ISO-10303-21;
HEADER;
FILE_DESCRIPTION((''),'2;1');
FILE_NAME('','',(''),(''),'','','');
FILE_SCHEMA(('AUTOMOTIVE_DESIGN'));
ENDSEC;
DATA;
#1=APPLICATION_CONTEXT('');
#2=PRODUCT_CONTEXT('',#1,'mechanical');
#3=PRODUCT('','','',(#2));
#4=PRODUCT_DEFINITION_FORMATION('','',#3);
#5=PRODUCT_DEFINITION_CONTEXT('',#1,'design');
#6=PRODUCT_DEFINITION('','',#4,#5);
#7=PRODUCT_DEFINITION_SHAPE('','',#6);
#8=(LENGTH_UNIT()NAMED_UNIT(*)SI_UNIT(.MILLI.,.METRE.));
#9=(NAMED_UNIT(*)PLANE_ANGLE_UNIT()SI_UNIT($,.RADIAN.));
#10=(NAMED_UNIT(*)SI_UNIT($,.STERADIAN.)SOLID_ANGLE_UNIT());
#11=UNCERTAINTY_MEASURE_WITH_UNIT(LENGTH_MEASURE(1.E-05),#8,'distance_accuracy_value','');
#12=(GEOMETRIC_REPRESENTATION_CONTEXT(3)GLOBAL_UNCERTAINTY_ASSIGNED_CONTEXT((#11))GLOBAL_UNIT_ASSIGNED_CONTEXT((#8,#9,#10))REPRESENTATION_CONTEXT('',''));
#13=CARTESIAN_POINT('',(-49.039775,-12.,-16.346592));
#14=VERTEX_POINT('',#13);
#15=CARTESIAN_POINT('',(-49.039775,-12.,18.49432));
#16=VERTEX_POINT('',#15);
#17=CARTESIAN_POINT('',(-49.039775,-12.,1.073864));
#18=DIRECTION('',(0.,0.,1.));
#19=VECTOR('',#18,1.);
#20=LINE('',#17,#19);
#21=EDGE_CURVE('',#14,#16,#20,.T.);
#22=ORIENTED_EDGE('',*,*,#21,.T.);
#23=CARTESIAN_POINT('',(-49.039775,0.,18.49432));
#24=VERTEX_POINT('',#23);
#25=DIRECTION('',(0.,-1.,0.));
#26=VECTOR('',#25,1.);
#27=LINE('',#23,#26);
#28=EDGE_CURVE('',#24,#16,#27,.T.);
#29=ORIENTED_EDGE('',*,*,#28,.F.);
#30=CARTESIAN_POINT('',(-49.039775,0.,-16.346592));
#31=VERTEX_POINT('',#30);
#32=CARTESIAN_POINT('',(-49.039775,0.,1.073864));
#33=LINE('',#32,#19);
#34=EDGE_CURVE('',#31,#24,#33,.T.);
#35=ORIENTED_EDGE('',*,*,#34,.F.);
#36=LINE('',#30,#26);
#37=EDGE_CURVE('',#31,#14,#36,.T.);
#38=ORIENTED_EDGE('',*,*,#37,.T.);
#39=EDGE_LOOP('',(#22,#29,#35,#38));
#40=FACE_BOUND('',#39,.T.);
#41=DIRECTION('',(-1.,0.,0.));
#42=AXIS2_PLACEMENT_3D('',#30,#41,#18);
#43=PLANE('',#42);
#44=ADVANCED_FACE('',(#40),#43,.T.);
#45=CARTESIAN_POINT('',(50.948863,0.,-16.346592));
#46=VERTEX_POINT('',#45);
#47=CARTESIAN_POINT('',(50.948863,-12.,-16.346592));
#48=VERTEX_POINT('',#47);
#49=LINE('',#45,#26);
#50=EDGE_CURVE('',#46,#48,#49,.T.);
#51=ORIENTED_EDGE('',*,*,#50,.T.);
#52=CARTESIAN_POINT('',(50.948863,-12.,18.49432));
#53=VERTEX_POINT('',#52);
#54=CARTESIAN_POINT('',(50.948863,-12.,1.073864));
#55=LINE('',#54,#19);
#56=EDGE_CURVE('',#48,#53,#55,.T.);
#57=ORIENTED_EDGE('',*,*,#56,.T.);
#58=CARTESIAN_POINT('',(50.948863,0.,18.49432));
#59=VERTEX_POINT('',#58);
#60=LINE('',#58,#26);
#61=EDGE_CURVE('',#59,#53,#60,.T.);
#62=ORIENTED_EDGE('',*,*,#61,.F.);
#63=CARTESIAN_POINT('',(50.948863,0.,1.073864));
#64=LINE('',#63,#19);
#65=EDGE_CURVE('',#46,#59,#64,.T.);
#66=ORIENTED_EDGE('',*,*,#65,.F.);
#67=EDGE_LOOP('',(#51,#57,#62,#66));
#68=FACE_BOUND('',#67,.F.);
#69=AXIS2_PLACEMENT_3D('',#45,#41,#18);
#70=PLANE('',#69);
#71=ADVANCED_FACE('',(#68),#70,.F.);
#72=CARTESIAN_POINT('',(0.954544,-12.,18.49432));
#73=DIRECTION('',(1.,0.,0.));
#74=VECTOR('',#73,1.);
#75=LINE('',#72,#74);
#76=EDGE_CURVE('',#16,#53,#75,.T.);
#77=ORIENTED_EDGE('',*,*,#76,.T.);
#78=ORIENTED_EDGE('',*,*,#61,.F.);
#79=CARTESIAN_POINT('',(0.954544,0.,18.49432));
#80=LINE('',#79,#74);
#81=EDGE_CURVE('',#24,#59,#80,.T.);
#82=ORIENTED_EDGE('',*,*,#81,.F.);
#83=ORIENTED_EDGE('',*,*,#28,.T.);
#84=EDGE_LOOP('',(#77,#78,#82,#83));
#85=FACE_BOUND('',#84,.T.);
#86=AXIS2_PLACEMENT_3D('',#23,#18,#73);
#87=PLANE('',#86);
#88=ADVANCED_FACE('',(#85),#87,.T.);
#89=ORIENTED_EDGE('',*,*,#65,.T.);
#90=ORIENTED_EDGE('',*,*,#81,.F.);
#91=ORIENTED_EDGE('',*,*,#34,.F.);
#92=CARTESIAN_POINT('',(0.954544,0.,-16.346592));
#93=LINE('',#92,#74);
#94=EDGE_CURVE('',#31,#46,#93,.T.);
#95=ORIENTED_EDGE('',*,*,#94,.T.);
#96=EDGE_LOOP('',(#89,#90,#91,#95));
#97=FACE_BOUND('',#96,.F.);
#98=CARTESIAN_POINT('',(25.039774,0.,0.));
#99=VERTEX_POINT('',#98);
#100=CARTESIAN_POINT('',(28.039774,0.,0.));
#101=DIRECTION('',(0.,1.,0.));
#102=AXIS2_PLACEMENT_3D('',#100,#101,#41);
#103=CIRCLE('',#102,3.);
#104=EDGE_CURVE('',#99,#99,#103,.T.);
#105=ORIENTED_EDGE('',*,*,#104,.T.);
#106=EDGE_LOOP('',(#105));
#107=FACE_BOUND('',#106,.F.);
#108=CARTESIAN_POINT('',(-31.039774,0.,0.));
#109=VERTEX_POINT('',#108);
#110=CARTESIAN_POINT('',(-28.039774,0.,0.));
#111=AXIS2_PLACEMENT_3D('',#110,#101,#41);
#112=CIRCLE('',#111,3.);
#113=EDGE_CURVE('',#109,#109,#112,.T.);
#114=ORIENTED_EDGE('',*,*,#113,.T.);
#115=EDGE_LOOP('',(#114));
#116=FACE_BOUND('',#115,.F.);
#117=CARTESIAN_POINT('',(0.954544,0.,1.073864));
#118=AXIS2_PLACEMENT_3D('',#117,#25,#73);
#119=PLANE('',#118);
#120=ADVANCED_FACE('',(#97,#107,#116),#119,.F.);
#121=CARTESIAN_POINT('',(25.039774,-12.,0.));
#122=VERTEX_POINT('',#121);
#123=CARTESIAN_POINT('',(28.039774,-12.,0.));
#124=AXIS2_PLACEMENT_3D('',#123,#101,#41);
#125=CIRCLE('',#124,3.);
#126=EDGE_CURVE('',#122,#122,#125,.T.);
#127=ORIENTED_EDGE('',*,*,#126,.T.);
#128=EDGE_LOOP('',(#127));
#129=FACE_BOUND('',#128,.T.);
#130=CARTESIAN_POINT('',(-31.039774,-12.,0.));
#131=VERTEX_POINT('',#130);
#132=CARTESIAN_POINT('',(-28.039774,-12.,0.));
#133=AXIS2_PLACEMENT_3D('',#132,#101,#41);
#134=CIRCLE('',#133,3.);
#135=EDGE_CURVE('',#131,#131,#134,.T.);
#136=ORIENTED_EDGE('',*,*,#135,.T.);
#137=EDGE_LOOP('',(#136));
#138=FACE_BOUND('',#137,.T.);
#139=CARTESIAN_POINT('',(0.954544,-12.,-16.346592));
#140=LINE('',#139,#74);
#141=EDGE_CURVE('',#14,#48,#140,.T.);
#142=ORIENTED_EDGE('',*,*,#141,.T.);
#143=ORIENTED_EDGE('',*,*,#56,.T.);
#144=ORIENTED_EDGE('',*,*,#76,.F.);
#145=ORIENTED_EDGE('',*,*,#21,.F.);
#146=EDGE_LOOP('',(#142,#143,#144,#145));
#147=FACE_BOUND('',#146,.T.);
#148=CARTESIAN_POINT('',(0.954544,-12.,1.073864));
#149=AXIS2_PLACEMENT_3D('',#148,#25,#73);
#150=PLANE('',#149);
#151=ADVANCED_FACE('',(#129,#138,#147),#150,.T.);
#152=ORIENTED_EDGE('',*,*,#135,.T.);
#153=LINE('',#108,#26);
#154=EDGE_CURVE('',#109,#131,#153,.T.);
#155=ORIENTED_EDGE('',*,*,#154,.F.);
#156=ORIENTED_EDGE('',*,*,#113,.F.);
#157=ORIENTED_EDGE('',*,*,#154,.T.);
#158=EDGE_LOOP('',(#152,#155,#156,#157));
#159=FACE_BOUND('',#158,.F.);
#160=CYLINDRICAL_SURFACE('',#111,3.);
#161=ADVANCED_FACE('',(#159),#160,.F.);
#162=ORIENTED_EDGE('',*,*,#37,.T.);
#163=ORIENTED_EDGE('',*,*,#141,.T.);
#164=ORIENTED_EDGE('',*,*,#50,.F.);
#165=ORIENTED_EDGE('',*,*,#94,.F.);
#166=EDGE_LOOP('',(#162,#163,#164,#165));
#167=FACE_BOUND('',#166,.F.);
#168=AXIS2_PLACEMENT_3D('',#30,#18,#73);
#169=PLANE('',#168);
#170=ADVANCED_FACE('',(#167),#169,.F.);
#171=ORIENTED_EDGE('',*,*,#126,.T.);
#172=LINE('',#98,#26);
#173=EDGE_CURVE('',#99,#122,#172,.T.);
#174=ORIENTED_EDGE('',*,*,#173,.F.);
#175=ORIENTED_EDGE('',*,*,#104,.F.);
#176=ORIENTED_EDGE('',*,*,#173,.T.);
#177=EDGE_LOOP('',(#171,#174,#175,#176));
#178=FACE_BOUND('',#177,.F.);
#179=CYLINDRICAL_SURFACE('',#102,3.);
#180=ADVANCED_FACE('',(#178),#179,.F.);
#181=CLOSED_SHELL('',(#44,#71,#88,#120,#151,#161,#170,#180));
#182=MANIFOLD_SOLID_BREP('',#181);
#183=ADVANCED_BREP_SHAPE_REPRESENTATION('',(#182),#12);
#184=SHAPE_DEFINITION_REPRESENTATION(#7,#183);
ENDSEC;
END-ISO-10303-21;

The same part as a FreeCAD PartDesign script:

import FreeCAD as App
import Part
import Sketcher

V = App.Vector


def add_polygon(sketch, points):
    """Adds a closed chain of lines whose ends are joined by coincident constraints."""
    first, n = sketch.GeometryCount, len(points)
    for a, b in zip(points, points[1:] + points[:1]):
        sketch.addGeometry(Part.LineSegment(App.Vector(*a, 0), App.Vector(*b, 0)), False)
    for i in range(n):
        sketch.addConstraint(Sketcher.Constraint("Coincident", first + i, 2, first + (i + 1) % n, 1))

doc = App.newDocument("Part")
body = doc.addObject("PartDesign::Body", "Body")

sketch1 = body.newObject("Sketcher::SketchObject", "Sketch")
sketch1.AttachmentSupport = (doc.getObject("XZ_Plane"), [""])
sketch1.MapMode = "FlatFace"
add_polygon(sketch1, [(-49, 18), (-49, -16), (51, -16), (51, 18)])
sketch1.addConstraint([
    Sketcher.Constraint("Vertical", 0),
    Sketcher.Constraint("Horizontal", 1),
    Sketcher.Constraint("Vertical", 2),
    Sketcher.Constraint("Horizontal", 3),
    Sketcher.Constraint("DistanceX", 1, 1, 1, 2, 99.988638),
    Sketcher.Constraint("DistanceY", 0, 2, 0, 1, 34.840912),
    Sketcher.Constraint("DistanceY", -1, 1, 2, 2, 18.49432),
    Sketcher.Constraint("DistanceX", 0, 2, -1, 1, 49.039775),
])
pad1 = body.newObject("PartDesign::Pad", "Pad")
pad1.Profile = sketch1
pad1.Length = 12

sketch2 = body.newObject("Sketcher::SketchObject", "Sketch001")
sketch2.AttachmentSupport = (doc.getObject("XZ_Plane"), [""])
sketch2.MapMode = "FlatFace"
sketch2.addGeometry([
    Part.Circle(V(28, 0, 0), V(0, 0, 1), 3),
    Part.Circle(V(-28, 0, 0), V(0, 0, 1), 3),
], False)
sketch2.addConstraint([
    Sketcher.Constraint("Equal", 0, 1),
    Sketcher.Constraint("Symmetric", 0, 3, 1, 3, -1, 1),
    Sketcher.Constraint("PointOnObject", 0, 3, -1),
    Sketcher.Constraint("Diameter", 0, 6.0),
    Sketcher.Constraint("DistanceX", 1, 3, 0, 3, 56.079548),
])
pocket1 = body.newObject("PartDesign::Pocket", "Pocket")
pocket1.Profile = sketch2
pocket1.Length = 75
pocket1.Reversed = True

doc.recompute()
